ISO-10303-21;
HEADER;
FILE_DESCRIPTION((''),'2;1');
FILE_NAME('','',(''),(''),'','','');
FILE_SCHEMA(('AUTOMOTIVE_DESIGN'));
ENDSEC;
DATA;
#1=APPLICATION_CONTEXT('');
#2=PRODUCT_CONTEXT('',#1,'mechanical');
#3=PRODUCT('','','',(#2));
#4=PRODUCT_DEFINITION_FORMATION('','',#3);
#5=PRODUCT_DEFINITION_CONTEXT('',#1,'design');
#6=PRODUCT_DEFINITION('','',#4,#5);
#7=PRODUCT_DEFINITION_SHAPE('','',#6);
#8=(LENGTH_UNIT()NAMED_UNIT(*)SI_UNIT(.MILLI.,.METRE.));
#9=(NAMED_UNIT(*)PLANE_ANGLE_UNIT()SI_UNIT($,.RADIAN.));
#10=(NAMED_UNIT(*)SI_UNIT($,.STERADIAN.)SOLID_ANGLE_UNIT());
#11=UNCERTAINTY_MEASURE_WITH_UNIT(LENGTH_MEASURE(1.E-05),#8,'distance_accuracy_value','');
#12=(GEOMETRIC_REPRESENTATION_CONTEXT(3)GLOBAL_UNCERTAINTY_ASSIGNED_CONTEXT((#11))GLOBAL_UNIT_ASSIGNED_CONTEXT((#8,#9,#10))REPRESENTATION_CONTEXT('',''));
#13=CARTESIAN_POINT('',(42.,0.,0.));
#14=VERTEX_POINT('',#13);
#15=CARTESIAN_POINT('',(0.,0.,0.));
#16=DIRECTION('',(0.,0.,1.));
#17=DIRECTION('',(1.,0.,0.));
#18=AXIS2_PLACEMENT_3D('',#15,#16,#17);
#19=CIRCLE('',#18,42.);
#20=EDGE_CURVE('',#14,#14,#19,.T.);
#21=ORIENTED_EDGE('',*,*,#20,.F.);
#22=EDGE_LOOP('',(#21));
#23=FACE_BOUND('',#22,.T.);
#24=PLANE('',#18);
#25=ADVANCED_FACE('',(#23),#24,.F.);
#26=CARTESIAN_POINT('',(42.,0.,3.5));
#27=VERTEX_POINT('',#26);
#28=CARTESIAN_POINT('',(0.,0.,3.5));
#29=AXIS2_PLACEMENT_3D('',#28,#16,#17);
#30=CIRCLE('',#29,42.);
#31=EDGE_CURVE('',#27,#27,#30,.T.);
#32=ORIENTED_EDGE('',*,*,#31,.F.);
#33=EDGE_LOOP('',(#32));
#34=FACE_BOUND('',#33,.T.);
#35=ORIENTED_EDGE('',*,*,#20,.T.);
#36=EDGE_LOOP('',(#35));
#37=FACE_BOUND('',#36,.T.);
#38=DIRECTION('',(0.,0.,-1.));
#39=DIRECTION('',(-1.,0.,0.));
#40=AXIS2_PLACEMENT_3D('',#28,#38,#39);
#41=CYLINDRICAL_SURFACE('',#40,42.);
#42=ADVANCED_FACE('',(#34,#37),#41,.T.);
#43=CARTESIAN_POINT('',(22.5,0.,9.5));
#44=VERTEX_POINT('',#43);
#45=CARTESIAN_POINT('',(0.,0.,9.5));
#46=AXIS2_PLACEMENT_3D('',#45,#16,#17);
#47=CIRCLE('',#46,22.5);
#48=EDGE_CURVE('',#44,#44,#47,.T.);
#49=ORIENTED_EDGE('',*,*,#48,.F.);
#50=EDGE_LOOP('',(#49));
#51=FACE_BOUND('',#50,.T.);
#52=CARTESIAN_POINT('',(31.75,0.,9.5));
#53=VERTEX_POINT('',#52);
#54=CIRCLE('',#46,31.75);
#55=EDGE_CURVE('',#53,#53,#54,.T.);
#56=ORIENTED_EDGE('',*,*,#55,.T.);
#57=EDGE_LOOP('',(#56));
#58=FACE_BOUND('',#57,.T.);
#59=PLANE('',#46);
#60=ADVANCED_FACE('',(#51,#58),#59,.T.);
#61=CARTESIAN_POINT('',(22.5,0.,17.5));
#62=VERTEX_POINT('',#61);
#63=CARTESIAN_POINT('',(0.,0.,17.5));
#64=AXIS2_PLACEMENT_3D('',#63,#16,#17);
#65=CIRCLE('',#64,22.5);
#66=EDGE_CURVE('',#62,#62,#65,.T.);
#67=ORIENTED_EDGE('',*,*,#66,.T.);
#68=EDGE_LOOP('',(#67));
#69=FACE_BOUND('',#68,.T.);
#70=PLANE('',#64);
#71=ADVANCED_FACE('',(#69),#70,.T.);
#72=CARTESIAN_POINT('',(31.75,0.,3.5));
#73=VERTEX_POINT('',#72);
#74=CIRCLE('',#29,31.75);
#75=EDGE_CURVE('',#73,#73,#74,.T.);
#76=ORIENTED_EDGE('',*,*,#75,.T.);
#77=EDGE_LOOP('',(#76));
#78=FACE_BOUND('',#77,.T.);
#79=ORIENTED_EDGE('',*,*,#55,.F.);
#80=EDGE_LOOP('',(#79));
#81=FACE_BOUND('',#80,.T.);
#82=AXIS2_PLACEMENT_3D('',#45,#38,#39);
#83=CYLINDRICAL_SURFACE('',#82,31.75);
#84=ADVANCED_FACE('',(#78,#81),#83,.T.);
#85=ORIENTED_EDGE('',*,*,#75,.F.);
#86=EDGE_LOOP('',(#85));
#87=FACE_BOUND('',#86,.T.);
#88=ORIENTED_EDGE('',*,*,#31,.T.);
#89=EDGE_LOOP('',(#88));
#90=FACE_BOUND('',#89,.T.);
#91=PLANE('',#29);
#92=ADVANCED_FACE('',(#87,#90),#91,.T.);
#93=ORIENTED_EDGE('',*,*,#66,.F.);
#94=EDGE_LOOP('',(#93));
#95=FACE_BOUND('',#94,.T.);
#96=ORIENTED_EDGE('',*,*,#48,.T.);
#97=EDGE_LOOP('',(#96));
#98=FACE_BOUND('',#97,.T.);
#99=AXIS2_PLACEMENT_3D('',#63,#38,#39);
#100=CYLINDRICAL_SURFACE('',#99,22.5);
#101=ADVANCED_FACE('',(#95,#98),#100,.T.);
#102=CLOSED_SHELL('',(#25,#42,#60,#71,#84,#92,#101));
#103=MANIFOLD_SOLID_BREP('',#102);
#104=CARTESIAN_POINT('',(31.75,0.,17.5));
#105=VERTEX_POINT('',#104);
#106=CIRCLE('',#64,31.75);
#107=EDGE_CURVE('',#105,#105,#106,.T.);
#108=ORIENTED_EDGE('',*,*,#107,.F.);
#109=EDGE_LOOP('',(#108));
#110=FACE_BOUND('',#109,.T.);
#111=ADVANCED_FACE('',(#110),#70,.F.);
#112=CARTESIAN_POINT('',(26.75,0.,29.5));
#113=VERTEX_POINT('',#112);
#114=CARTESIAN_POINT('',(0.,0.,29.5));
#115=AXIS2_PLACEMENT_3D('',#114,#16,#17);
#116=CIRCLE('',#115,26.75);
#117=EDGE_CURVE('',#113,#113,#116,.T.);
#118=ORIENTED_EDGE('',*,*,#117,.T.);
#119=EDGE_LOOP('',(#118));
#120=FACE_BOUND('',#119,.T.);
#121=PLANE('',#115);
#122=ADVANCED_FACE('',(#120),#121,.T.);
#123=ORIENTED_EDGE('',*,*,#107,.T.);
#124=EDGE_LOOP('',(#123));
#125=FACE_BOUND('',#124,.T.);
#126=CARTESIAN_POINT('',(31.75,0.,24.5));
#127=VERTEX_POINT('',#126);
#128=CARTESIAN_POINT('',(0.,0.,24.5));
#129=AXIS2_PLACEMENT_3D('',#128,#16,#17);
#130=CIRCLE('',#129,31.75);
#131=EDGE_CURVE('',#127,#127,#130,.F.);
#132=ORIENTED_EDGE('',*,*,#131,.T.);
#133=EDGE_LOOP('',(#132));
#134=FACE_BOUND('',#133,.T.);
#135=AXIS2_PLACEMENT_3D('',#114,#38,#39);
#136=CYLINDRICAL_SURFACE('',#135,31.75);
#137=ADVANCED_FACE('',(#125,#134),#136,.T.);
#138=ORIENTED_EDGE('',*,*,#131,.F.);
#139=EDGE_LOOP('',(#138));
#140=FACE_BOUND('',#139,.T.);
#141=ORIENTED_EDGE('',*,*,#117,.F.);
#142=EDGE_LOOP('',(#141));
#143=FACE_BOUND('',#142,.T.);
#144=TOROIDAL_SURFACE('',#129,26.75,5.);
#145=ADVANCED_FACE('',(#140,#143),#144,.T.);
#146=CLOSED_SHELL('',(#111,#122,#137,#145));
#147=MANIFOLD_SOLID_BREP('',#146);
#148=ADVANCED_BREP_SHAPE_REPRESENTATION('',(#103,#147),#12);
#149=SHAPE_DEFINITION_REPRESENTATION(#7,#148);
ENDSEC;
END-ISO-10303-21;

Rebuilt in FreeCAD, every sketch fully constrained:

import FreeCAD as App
import Part
import Sketcher


def edges_at(feature, points):
    """Names of the edges that pass closest to the given points."""
    edges = feature.Shape.Edges
    near = lambda p: min(range(len(edges)), key=lambda i: edges[i].distToShape(Part.Vertex(*p))[0])
    return sorted({f"Edge{near(p) + 1}" for p in points})

doc = App.newDocument("Part")
body = doc.addObject("PartDesign::Body", "Body")

# Sketch on XY plane
sketch1 = body.newObject("Sketcher::SketchObject", "Sketch")
sketch1.AttachmentSupport = (doc.getObject("XY_Plane"), [""])
sketch1.MapMode = "FlatFace"
sketch1.addGeometry(Part.Circle(App.Vector(0, 0, 0), App.Vector(0, 0, 1), 42), False)
sketch1.addConstraint(Sketcher.Constraint("Coincident", 0, 3, -1, 1))
sketch1.addConstraint(Sketcher.Constraint("Diameter", 0, 84.0))
pad1 = body.newObject("PartDesign::Pad", "Pad")
pad1.Profile = sketch1
pad1.Length = 3.5

# Sketch on XY plane
sketch2 = body.newObject("Sketcher::SketchObject", "Sketch001")
sketch2.AttachmentSupport = (doc.getObject("XY_Plane"), [""])
sketch2.MapMode = "FlatFace"
sketch2.AttachmentOffset = App.Placement(App.Vector(0, 0, 3.5), App.Rotation())
sketch2.addGeometry(Part.Circle(App.Vector(0, 0, 0), App.Vector(0, 0, 1), 32), False)
sketch2.addConstraint(Sketcher.Constraint("Coincident", 0, 3, -1, 1))
sketch2.addConstraint(Sketcher.Constraint("Diameter", 0, 63.5))
pad2 = body.newObject("PartDesign::Pad", "Pad001")
pad2.Profile = sketch2
pad2.Length = 6

# Sketch on XY plane
sketch3 = body.newObject("Sketcher::SketchObject", "Sketch002")
sketch3.AttachmentSupport = (doc.getObject("XY_Plane"), [""])
sketch3.MapMode = "FlatFace"
sketch3.AttachmentOffset = App.Placement(App.Vector(0, 0, 9.5), App.Rotation())
sketch3.addGeometry(Part.Circle(App.Vector(0, 0, 0), App.Vector(0, 0, 1), 22), False)
sketch3.addConstraint(Sketcher.Constraint("Coincident", 0, 3, -1, 1))
sketch3.addConstraint(Sketcher.Constraint("Diameter", 0, 45.0))
pad3 = body.newObject("PartDesign::Pad", "Pad002")
pad3.Profile = sketch3
pad3.Length = 8
body2 = doc.addObject("PartDesign::Body", "Body001")

# Sketch on XY plane
sketch4 = body2.newObject("Sketcher::SketchObject", "Sketch003")
sketch4.AttachmentSupport = (doc.getObject("XY_Plane001"), [""])
sketch4.MapMode = "FlatFace"
sketch4.AttachmentOffset = App.Placement(App.Vector(0, 0, 17.5), App.Rotation())
sketch4.addGeometry(Part.Circle(App.Vector(0, 0, 0), App.Vector(0, 0, 1), 32), False)
sketch4.addConstraint(Sketcher.Constraint("Coincident", 0, 3, -1, 1))
sketch4.addConstraint(Sketcher.Constraint("Diameter", 0, 63.5))
pad4 = body2.newObject("PartDesign::Pad", "Pad003")
pad4.Profile = sketch4
pad4.Length = 12
doc.recompute()

fillet = body2.newObject("PartDesign::Fillet", "Fillet")
fillet.Base = (pad4, edges_at(pad4, [(-31.75, 0, 29.5)]))
fillet.Radius = 5

doc.recompute()
